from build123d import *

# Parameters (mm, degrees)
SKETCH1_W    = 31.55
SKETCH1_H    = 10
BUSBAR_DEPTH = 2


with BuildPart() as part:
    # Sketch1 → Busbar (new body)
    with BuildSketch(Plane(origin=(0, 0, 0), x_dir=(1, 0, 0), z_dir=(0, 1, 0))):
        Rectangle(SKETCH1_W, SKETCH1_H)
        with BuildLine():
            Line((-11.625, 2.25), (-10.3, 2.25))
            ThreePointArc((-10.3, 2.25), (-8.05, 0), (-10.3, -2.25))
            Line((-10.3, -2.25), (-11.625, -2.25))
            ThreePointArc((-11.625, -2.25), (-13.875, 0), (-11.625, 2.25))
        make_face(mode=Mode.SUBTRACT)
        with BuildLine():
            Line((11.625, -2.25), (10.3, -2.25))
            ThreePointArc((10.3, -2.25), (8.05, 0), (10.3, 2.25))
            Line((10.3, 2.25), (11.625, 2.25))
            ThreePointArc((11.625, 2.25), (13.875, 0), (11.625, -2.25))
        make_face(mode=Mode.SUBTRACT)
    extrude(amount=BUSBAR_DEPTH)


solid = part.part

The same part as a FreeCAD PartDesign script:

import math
import FreeCAD as App
import Part
import Sketcher
Q = App.Units.Quantity


def add_polygon(sketch, points):
    """Adds a closed chain of lines whose ends are joined by coincident constraints."""
    first, n = sketch.GeometryCount, len(points)
    for a, b in zip(points, points[1:] + points[:1]):
        sketch.addGeometry(Part.LineSegment(App.Vector(*a, 0), App.Vector(*b, 0)), False)
    for i in range(n):
        sketch.addConstraint(Sketcher.Constraint("Coincident", first + i, 2, first + (i + 1) % n, 1))

doc = App.newDocument("Part")
body = doc.addObject("PartDesign::Body", "Body")

# Sketch on XZ plane
sketch1 = body.newObject("Sketcher::SketchObject", "Sketch")
sketch1.AttachmentSupport = (doc.getObject("XZ_Plane"), [""])
sketch1.MapMode = "FlatFace"
add_polygon(sketch1, [(-15.775, -5), (-15.775, 5), (15.775, 5), (15.775, -5)])  # lines 0-3
sketch1.addGeometry(Part.ArcOfCircle(Part.Circle(App.Vector(-11.625, 0, 0), App.Vector(0, 0, 1), 2.25), math.radians(90), math.radians(270)), False)  # 4
sketch1.addGeometry(Part.LineSegment(App.Vector(-11.625, -2.25, 0), App.Vector(-10.3, -2.25, 0)), False)  # 5
sketch1.addGeometry(Part.ArcOfCircle(Part.Circle(App.Vector(-10.3, 0, 0), App.Vector(0, 0, 1), 2.25), math.radians(-90), math.radians(90)), False)  # 6
sketch1.addGeometry(Part.LineSegment(App.Vector(-10.3, 2.25, 0), App.Vector(-11.625, 2.25, 0)), False)  # 7
sketch1.addGeometry(Part.ArcOfCircle(Part.Circle(App.Vector(11.625, 0, 0), App.Vector(0, 0, 1), 2.25), math.radians(-90), math.radians(90)), False)  # 8
sketch1.addGeometry(Part.LineSegment(App.Vector(11.625, 2.25, 0), App.Vector(10.3, 2.25, 0)), False)  # 9
sketch1.addGeometry(Part.ArcOfCircle(Part.Circle(App.Vector(10.3, 0, 0), App.Vector(0, 0, 1), 2.25), math.radians(90), math.radians(270)), False)  # 10
sketch1.addGeometry(Part.LineSegment(App.Vector(10.3, -2.25, 0), App.Vector(11.625, -2.25, 0)), False)  # 11
sketch1.addConstraint(Sketcher.Constraint("Tangent", 4, 2, 5, 1))
sketch1.addConstraint(Sketcher.Constraint("Tangent", 5, 2, 6, 1))
sketch1.addConstraint(Sketcher.Constraint("Tangent", 6, 2, 7, 1))
sketch1.addConstraint(Sketcher.Constraint("Tangent", 7, 2, 4, 1))
sketch1.addConstraint(Sketcher.Constraint("Tangent", 8, 2, 9, 1))
sketch1.addConstraint(Sketcher.Constraint("Tangent", 9, 2, 10, 1))
sketch1.addConstraint(Sketcher.Constraint("Tangent", 10, 2, 11, 1))
sketch1.addConstraint(Sketcher.Constraint("Tangent", 11, 2, 8, 1))
sketch1.addConstraint(Sketcher.Constraint("Vertical", 0))
sketch1.addConstraint(Sketcher.Constraint("Horizontal", 1))
sketch1.addConstraint(Sketcher.Constraint("Vertical", 2))
sketch1.addConstraint(Sketcher.Constraint("Horizontal", 3))
sketch1.addConstraint(Sketcher.Constraint("Horizontal", 5))
sketch1.addConstraint(Sketcher.Constraint("Horizontal", 7))
sketch1.addConstraint(Sketcher.Constraint("Horizontal", 9))
sketch1.addConstraint(Sketcher.Constraint("Horizontal", 11))
sketch1.addConstraint(Sketcher.Constraint("Equal", 6, 8))
sketch1.addConstraint(Sketcher.Constraint("Symmetric", 4, 3, 8, 3, -1, 1))
sketch1.addConstraint(Sketcher.Constraint("Symmetric", 0, 2, 2, 2, -1, 1))
sketch1.addConstraint(Sketcher.Constraint("Symmetric", 6, 3, 10, 3, -2))
sketch1.addConstraint(Sketcher.Constraint("DistanceY", 0, 1, 0, 2, Q("10 mm")))
sketch1.addConstraint(Sketcher.Constraint("Radius", 4, Q("2.25 mm")))
sketch1.addConstraint(Sketcher.Constraint("DistanceX", 1, 1, 1, 2, Q("31.55 mm")))
sketch1.addConstraint(Sketcher.Constraint("DistanceX", 6, 3, -1, 1, Q("10.3 mm")))
sketch1.addConstraint(Sketcher.Constraint("DistanceX", 0, 2, 8, 3, Q("27.4 mm")))
pad1 = body.newObject("PartDesign::Pad", "Pad")
pad1.Profile = sketch1
pad1.Length = 2
pad1.Reversed = True

doc.recompute()
